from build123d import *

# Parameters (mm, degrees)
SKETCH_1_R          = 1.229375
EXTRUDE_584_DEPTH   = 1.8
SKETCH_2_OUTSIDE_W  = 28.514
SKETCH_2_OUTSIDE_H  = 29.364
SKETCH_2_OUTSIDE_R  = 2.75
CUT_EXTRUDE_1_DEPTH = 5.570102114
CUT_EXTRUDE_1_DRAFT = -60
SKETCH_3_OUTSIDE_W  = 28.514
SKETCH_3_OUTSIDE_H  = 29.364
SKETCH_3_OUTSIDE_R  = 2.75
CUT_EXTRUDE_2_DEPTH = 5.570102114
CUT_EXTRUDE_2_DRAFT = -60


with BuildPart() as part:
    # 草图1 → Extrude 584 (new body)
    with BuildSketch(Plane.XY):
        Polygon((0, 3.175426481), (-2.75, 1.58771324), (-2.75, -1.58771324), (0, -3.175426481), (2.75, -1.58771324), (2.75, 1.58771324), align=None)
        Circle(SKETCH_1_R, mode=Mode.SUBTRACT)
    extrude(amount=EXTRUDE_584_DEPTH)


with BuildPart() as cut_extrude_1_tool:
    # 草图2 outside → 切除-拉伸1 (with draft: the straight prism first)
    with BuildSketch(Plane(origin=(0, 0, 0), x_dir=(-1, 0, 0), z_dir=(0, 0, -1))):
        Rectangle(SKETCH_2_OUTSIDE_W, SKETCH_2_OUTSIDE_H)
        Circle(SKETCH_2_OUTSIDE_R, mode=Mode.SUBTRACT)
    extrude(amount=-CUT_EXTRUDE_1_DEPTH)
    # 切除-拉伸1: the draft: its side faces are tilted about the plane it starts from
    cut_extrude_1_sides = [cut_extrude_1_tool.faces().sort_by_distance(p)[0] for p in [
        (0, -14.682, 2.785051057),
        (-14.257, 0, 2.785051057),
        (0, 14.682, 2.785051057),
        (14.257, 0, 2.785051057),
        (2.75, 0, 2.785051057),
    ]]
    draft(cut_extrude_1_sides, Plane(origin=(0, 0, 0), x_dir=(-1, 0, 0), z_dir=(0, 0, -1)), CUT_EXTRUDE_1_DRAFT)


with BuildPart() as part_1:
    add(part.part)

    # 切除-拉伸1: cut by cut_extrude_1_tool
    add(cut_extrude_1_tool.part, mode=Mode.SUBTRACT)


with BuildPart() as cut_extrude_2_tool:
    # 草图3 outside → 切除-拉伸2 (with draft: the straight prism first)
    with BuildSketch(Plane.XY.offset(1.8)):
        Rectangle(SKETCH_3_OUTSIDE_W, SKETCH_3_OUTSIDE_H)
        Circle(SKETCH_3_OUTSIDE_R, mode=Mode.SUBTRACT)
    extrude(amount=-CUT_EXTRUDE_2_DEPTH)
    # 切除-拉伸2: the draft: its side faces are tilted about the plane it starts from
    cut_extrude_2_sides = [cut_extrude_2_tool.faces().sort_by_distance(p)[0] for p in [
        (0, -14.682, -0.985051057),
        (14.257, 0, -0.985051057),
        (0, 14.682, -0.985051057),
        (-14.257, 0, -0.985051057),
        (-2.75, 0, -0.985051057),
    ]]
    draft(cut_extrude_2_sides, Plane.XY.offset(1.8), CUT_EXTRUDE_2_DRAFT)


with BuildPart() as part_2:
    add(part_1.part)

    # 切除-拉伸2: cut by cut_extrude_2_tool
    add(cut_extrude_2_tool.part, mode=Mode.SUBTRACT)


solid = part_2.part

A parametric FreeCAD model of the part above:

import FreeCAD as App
import Part
import Sketcher

V = App.Vector
Q = App.Units.Quantity


def faces_at(feature, points):
    """Names of the faces that lie closest to the given points."""
    faces = feature.Shape.Faces
    near = lambda p: min(range(len(faces)), key=lambda i: faces[i].distToShape(Part.Vertex(*p))[0])
    return sorted({f"Face{near(p) + 1}" for p in points})

doc = App.newDocument("Part")
body = doc.addObject("PartDesign::Body", "Body")

# Sketch on XY plane
sketch1 = body.newObject("Sketcher::SketchObject", "Sketch")
sketch1.AttachmentSupport = (doc.getObject("XY_Plane"), [""])
sketch1.MapMode = "FlatFace"
sketch1.addGeometry([
    Part.LineSegment(V(0, 3.175426, 0), V(-2.75, 1.587713, 0)),  # 0
    Part.LineSegment(V(-2.75, 1.587713, 0), V(-2.75, -1.587713, 0)),  # 1
    Part.LineSegment(V(-2.75, -1.587713, 0), V(0, -3.175426, 0)),  # 2
    Part.LineSegment(V(0, -3.175426, 0), V(2.75, -1.587713, 0)),  # 3
    Part.LineSegment(V(2.75, -1.587713, 0), V(2.75, 1.587713, 0)),  # 4
    Part.LineSegment(V(2.75, 1.587713, 0), V(0, 3.175426, 0)),  # 5
    Part.Circle(V(0, 0, 0), V(0, 0, 1), 1.229375),  # 6
], False)
sketch1.addConstraint([
    Sketcher.Constraint("Coincident", 0, 2, 1, 1),
    Sketcher.Constraint("Coincident", 1, 2, 2, 1),
    Sketcher.Constraint("Coincident", 2, 2, 3, 1),
    Sketcher.Constraint("Coincident", 3, 2, 4, 1),
    Sketcher.Constraint("Coincident", 4, 2, 5, 1),
    Sketcher.Constraint("Coincident", 5, 2, 0, 1),
    Sketcher.Constraint("Vertical", 1),
    Sketcher.Constraint("Vertical", 4),
    Sketcher.Constraint("Coincident", 6, 3, -1, 1),
    Sketcher.Constraint("Symmetric", 0, 2, 3, 2, -1, 1),
    Sketcher.Constraint("Symmetric", 2, 2, 5, 2, -1, 1),
    Sketcher.Constraint("PointOnObject", 2, 2, -2),
    Sketcher.Constraint("Parallel", 2, 5),
    Sketcher.Constraint("Horizontal", 1, 2, 3, 2),
    Sketcher.Constraint("Angle", 0, Q("-150 deg")),
    Sketcher.Constraint("DistanceX", 1, 2, 3, 2, 5.5),
    Sketcher.Constraint("Diameter", 6, 2.45875),
    Sketcher.Constraint("DistanceY", 1, 2, 1, 1, 3.175426),
])
pad1 = body.newObject("PartDesign::Pad", "Pad")
pad1.Profile = sketch1
pad1.Length = 1.8
body2 = doc.addObject("PartDesign::Body", "Body001")

# Sketch on XY plane
sketch2 = body2.newObject("Sketcher::SketchObject", "Sketch001")
sketch2.AttachmentSupport = (doc.getObject("XY_Plane001"), [""])
sketch2.MapMode = "FlatFace"
sketch2.addGeometry([
    Part.LineSegment(V(14.257, 14.682, 0), V(14.257, -14.682, 0)),  # 0
    Part.LineSegment(V(14.257, -14.682, 0), V(-14.257, -14.682, 0)),  # 1
    Part.LineSegment(V(-14.257, -14.682, 0), V(-14.257, 14.682, 0)),  # 2
    Part.LineSegment(V(-14.257, 14.682, 0), V(14.257, 14.682, 0)),  # 3
    Part.Circle(V(0, 0, 0), V(0, 0, 1), 2.75),  # 4
], False)
sketch2.addConstraint([
    Sketcher.Constraint("Coincident", 0, 2, 1, 1),
    Sketcher.Constraint("Coincident", 1, 2, 2, 1),
    Sketcher.Constraint("Coincident", 2, 2, 3, 1),
    Sketcher.Constraint("Coincident", 3, 2, 0, 1),
    Sketcher.Constraint("Vertical", 0),
    Sketcher.Constraint("Horizontal", 1),
    Sketcher.Constraint("Vertical", 2),
    Sketcher.Constraint("Horizontal", 3),
    Sketcher.Constraint("Coincident", 4, 3, -1, 1),
    Sketcher.Constraint("Symmetric", 0, 2, 2, 2, -1, 1),
    Sketcher.Constraint("Diameter", 4, 5.5),
    Sketcher.Constraint("DistanceX", 1, 2, 1, 1, 28.514),
    Sketcher.Constraint("DistanceY", 0, 2, 0, 1, 29.364),
])
pad2 = body2.newObject("PartDesign::Pad", "Pad001")
pad2.Profile = sketch2
pad2.Length = 5.570102
doc.recompute()

draft = body2.newObject("PartDesign::Draft", "Draft")
draft.Base = (pad2, faces_at(pad2, [
    (0, -14.682, 2.785),
    (-14.257, 0, 2.785),
    (0, 14.682, 2.785),
    (14.257, 0, 2.785),
    (2.75, 0, 2.785),
]))
draft.NeutralPlane = (doc.getObject("XY_Plane001"), [""])
draft.Angle = 60
draft.Reversed = False
doc.recompute()

boolean = body.newObject("PartDesign::Boolean", "Boolean")
boolean.Type = "Cut"
boolean.addObjects([body2])
body3 = doc.addObject("PartDesign::Body", "Body002")

# Sketch on XY plane
sketch3 = body3.newObject("Sketcher::SketchObject", "Sketch002")
sketch3.AttachmentSupport = (doc.getObject("XY_Plane002"), [""])
sketch3.MapMode = "FlatFace"
sketch3.AttachmentOffset = App.Placement(V(0, 0, 1.8), App.Rotation())
sketch3.addGeometry([
    Part.LineSegment(V(-14.257, 14.682, 0), V(-14.257, -14.682, 0)),  # 0
    Part.LineSegment(V(-14.257, -14.682, 0), V(14.257, -14.682, 0)),  # 1
    Part.LineSegment(V(14.257, -14.682, 0), V(14.257, 14.682, 0)),  # 2
    Part.LineSegment(V(14.257, 14.682, 0), V(-14.257, 14.682, 0)),  # 3
    Part.Circle(V(0, 0, 0), V(0, 0, 1), 2.75),  # 4
], False)
sketch3.addConstraint([
    Sketcher.Constraint("Coincident", 0, 2, 1, 1),
    Sketcher.Constraint("Coincident", 1, 2, 2, 1),
    Sketcher.Constraint("Coincident", 2, 2, 3, 1),
    Sketcher.Constraint("Coincident", 3, 2, 0, 1),
    Sketcher.Constraint("Vertical", 0),
    Sketcher.Constraint("Horizontal", 1),
    Sketcher.Constraint("Vertical", 2),
    Sketcher.Constraint("Horizontal", 3),
    Sketcher.Constraint("Coincident", 4, 3, -1, 1),
    Sketcher.Constraint("Symmetric", 0, 2, 2, 2, -1, 1),
    Sketcher.Constraint("Diameter", 4, 5.5),
    Sketcher.Constraint("DistanceX", 1, 1, 1, 2, 28.514),
    Sketcher.Constraint("DistanceY", 0, 2, 0, 1, 29.364),
])
pad3 = body3.newObject("PartDesign::Pad", "Pad002")
pad3.Profile = sketch3
pad3.Length = 5.570102
pad3.Reversed = True
doc.recompute()

datumplane = body3.newObject("PartDesign::Plane", "DatumPlane")
datumplane.AttachmentSupport = (doc.getObject("XY_Plane002"), [""])
datumplane.MapMode = "FlatFace"
datumplane.AttachmentOffset = App.Placement(V(0, 0, 1.8), App.Rotation())
draft2 = body3.newObject("PartDesign::Draft", "Draft001")
draft2.Base = (pad3, faces_at(pad3, [
    (0, -14.682, -0.985),
    (14.257, 0, -0.985),
    (0, 14.682, -0.985),
    (-14.257, 0, -0.985),
    (-2.75, 0, -0.985),
]))
draft2.NeutralPlane = (datumplane, [""])
draft2.Angle = 60
draft2.Reversed = True
doc.recompute()

boolean2 = body.newObject("PartDesign::Boolean", "Boolean001")
boolean2.Type = "Cut"
boolean2.addObjects([body3])

doc.recompute()
